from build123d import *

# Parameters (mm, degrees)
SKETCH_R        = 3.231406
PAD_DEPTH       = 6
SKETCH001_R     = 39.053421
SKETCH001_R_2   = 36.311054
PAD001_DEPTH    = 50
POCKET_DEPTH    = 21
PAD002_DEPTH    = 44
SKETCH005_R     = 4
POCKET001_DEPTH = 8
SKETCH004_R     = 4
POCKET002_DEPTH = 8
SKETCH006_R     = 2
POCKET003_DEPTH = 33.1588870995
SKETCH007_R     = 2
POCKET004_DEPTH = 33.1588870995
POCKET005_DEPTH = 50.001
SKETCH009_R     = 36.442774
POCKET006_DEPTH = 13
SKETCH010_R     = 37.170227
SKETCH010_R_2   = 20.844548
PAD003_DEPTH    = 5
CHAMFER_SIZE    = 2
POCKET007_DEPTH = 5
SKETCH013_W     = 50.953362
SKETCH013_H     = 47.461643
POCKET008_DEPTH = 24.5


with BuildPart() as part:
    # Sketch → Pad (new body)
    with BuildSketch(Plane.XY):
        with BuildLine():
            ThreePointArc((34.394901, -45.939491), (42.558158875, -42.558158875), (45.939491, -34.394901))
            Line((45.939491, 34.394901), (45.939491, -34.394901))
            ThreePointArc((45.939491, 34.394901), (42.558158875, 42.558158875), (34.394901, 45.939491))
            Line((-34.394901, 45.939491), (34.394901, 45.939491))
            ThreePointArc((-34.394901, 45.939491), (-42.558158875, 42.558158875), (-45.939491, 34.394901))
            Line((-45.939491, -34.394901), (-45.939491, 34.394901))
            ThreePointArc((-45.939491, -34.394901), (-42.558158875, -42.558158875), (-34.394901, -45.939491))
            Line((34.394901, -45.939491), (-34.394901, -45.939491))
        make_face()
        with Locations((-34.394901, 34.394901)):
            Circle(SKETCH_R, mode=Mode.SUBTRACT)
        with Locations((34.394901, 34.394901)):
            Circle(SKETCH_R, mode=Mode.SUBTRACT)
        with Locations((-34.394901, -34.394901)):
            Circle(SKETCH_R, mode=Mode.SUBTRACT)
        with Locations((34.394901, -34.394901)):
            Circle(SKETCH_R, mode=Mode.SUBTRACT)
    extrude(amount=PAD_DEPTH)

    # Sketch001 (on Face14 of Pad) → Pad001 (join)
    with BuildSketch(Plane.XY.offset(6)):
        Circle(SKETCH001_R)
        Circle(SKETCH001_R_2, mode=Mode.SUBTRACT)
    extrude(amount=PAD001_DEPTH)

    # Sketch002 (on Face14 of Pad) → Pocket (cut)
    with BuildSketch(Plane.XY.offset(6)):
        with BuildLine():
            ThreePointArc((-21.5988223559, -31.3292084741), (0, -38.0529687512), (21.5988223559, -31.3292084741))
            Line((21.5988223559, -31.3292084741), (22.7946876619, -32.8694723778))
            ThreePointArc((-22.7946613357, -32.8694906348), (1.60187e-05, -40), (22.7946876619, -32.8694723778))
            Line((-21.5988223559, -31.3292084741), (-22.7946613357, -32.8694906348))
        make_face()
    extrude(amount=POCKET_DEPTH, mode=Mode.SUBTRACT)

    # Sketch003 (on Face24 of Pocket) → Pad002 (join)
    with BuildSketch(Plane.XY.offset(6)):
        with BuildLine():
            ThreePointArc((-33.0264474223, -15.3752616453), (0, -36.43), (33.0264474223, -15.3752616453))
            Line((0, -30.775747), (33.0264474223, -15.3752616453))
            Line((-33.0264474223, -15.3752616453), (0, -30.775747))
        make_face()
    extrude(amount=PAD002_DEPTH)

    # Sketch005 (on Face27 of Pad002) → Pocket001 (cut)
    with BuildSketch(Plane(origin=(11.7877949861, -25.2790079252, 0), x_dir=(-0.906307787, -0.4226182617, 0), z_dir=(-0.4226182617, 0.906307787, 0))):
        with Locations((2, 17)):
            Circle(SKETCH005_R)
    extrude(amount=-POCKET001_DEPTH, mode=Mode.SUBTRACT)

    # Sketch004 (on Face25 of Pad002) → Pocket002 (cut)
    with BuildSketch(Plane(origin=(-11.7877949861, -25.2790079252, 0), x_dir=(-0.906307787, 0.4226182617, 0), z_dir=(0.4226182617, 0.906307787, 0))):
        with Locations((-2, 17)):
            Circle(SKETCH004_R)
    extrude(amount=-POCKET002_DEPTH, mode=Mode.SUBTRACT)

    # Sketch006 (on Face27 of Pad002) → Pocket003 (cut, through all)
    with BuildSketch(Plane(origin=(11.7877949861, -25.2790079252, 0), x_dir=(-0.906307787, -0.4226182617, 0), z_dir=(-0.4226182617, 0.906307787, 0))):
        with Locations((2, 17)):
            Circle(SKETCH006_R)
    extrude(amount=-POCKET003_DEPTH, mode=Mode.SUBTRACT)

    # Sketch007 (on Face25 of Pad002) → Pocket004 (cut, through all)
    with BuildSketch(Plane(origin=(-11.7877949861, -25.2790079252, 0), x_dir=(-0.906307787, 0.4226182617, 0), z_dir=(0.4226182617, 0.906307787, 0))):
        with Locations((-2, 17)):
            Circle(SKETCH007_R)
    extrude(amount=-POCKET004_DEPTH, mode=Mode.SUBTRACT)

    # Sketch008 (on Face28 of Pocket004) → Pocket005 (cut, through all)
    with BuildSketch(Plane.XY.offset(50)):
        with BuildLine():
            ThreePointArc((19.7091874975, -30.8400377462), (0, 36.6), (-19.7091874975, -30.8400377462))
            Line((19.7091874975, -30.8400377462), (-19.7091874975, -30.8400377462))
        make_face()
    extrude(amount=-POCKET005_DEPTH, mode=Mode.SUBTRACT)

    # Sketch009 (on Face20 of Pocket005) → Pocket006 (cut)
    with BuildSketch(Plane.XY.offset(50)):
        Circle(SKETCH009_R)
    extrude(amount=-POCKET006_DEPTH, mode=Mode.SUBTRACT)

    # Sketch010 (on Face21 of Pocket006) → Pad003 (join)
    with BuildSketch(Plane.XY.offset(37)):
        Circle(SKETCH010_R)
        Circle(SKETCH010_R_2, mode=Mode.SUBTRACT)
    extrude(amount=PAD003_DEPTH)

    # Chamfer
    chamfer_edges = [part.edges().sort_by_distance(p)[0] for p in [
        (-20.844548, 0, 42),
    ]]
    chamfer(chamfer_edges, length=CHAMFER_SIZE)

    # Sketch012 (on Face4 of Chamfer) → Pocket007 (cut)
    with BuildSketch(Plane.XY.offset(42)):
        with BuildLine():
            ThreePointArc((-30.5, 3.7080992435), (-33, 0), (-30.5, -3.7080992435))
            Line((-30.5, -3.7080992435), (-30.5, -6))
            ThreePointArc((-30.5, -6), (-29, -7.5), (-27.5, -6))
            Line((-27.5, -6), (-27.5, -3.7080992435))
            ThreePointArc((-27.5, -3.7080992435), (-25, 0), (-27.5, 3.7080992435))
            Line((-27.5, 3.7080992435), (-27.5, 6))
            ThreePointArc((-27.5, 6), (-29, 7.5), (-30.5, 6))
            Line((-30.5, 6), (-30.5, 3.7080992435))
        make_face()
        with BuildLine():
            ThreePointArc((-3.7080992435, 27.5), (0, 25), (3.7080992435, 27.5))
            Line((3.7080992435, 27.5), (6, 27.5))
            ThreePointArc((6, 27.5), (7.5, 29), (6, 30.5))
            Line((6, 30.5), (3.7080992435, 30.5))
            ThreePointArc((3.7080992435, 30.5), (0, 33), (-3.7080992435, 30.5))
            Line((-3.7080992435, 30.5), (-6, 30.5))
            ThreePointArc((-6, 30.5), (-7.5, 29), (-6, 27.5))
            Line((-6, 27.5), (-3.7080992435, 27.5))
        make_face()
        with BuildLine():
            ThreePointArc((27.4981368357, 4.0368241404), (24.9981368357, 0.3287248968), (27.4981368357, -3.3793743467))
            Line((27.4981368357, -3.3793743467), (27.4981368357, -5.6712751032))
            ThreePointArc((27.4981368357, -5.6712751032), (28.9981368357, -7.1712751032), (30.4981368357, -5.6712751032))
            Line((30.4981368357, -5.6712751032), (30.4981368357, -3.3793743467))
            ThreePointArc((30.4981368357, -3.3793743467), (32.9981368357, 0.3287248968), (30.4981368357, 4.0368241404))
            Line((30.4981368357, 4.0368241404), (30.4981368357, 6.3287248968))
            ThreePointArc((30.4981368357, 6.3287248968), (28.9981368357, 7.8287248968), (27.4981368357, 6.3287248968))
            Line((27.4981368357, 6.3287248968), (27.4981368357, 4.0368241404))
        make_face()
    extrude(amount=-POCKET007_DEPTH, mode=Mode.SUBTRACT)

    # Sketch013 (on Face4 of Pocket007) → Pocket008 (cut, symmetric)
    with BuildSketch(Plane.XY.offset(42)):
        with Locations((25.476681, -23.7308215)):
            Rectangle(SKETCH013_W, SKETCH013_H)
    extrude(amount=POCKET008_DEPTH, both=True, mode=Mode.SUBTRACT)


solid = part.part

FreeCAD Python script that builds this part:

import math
import FreeCAD as App
import Part
import Sketcher
Q = App.Units.Quantity


def edges_at(feature, points):
    """Names of the edges that pass closest to the given points."""
    edges = feature.Shape.Edges
    near = lambda p: min(range(len(edges)), key=lambda i: edges[i].distToShape(Part.Vertex(*p))[0])
    return sorted({f"Edge{near(p) + 1}" for p in points})

doc = App.newDocument("Part")
params = doc.addObject("Spreadsheet::Sheet", "Params")
for row, (alias, value) in enumerate([
    ("pad1_length", "6 mm"),
    ("pad2_length", "50 mm"),
    ("sketch3_radius", "40 mm"),
    ("sketch3_length", "1.95 mm"),
    ("sketch3_length2", "1.950002 mm"),
    ("pocket1_length", "21 mm"),
    ("sketch4_radius", "36.43 mm"),
    ("pad3_length", "44 mm"),
    ("sketch5_diameter", "8 mm"),
    ("pocket2_length", "8 mm"),
    ("sketch6_diameter", "8 mm"),
    ("pocket3_length", "8 mm"),
    ("sketch7_diameter", "4 mm"),
    ("sketch8_diameter", "4 mm"),
    ("sketch9_radius", "36.6 mm"),
    ("pocket7_length", "13 mm"),
    ("pad4_length", "5 mm"),
    ("chamfer_size", "2 mm"),
    ("sketch12_radius", "4 mm"),
    ("sketch12_radius2", "1.5 mm"),
    ("pocket8_length", "5 mm"),
    ("pocket9_length", "49 mm"),
], start=1):
    params.set(f"A{row}", alias)
    params.set(f"B{row}", "=" + value)
    params.setAlias(f"B{row}", alias)

body = doc.addObject("PartDesign::Body", "Body")

# Sketch on XY plane
sketch1 = body.newObject("Sketcher::SketchObject", "Sketch")
sketch1.AttachmentSupport = (doc.getObject("XY_Plane"), [""])
sketch1.MapMode = "FlatFace"
sketch1.addGeometry([
    Part.ArcOfCircle(Part.Circle(App.Vector(34.394901, -34.394901, 0), App.Vector(0, 0, 1), 11.54459), math.radians(-90), math.radians(0)),  # 0
    Part.LineSegment(App.Vector(45.939491, -34.394901, 0), App.Vector(45.939491, 34.394901, 0)),  # 1
    Part.ArcOfCircle(Part.Circle(App.Vector(34.394901, 34.394901, 0), App.Vector(0, 0, 1), 11.54459), math.radians(0), math.radians(90)),  # 2
    Part.LineSegment(App.Vector(34.394901, 45.939491, 0), App.Vector(-34.394901, 45.939491, 0)),  # 3
    Part.ArcOfCircle(Part.Circle(App.Vector(-34.394901, 34.394901, 0), App.Vector(0, 0, 1), 11.54459), math.radians(90), math.radians(180)),  # 4
    Part.LineSegment(App.Vector(-45.939491, 34.394901, 0), App.Vector(-45.939491, -34.394901, 0)),  # 5
    Part.ArcOfCircle(Part.Circle(App.Vector(-34.394901, -34.394901, 0), App.Vector(0, 0, 1), 11.54459), math.radians(180), math.radians(270)),  # 6
    Part.LineSegment(App.Vector(-34.394901, -45.939491, 0), App.Vector(34.394901, -45.939491, 0)),  # 7
    Part.Circle(App.Vector(-34.394901, -34.394901, 0), App.Vector(0, 0, 1), 3.231406),  # 8
    Part.Circle(App.Vector(34.394901, -34.394901, 0), App.Vector(0, 0, 1), 3.231406),  # 9
    Part.Circle(App.Vector(-34.394901, 34.394901, 0), App.Vector(0, 0, 1), 3.231406),  # 10
    Part.Circle(App.Vector(34.394901, 34.394901, 0), App.Vector(0, 0, 1), 3.231406),  # 11
], False)
sketch1.addConstraint([
    Sketcher.Constraint("Tangent", 0, 2, 1, 1),
    Sketcher.Constraint("Tangent", 1, 2, 2, 1),
    Sketcher.Constraint("Tangent", 2, 2, 3, 1),
    Sketcher.Constraint("Tangent", 3, 2, 4, 1),
    Sketcher.Constraint("Tangent", 4, 2, 5, 1),
    Sketcher.Constraint("Tangent", 5, 2, 6, 1),
    Sketcher.Constraint("Tangent", 6, 2, 7, 1),
    Sketcher.Constraint("Tangent", 7, 2, 0, 1),
    Sketcher.Constraint("Vertical", 1),
    Sketcher.Constraint("Horizontal", 3),
    Sketcher.Constraint("Vertical", 5),
    Sketcher.Constraint("Horizontal", 7),
    Sketcher.Constraint("Coincident", 8, 3, 6, 3),
    Sketcher.Constraint("Coincident", 9, 3, 0, 3),
    Sketcher.Constraint("Coincident", 10, 3, 4, 3),
    Sketcher.Constraint("Coincident", 11, 3, 2, 3),
    Sketcher.Constraint("Equal", 0, 2),
    Sketcher.Constraint("Equal", 2, 4),
    Sketcher.Constraint("Equal", 4, 6),
    Sketcher.Constraint("Equal", 8, 9),
    Sketcher.Constraint("Equal", 9, 10),
    Sketcher.Constraint("Equal", 10, 11),
    Sketcher.Constraint("Symmetric", 0, 3, 4, 3, -1, 1),
    Sketcher.Constraint("Equal", 7, 1),
    Sketcher.Constraint("Diameter", 8, 6.462812),
    Sketcher.Constraint("Radius", 0, 11.54459),
    Sketcher.Constraint("DistanceX", 3, 2, 3, 1, 68.789802),
])
pad1 = body.newObject("PartDesign::Pad", "Pad")
pad1.Profile = sketch1
pad1.setExpression("Length", "Params.pad1_length")

# Sketch on XY plane
sketch2 = body.newObject("Sketcher::SketchObject", "Sketch001")
sketch2.AttachmentSupport = (doc.getObject("XY_Plane"), [""])
sketch2.MapMode = "FlatFace"
sketch2.AttachmentOffset = App.Placement(App.Vector(0, 0, 6), App.Rotation())
sketch2.addGeometry([
    Part.Circle(App.Vector(0, 0, 0), App.Vector(0, 0, 1), 39.053421),
    Part.Circle(App.Vector(0, 0, 0), App.Vector(0, 0, 1), 36.311054),
], False)
sketch2.addConstraint([
    Sketcher.Constraint("Coincident", 0, 3, -1, 1),
    Sketcher.Constraint("Coincident", 1, 3, -1, 1),
    Sketcher.Constraint("Diameter", 0, 78.106842),
    Sketcher.Constraint("Diameter", 1, 72.622108),
])
pad2 = body.newObject("PartDesign::Pad", "Pad001")
pad2.Profile = sketch2
pad2.setExpression("Length", "Params.pad2_length")

# Sketch on XY plane
sketch3 = body.newObject("Sketcher::SketchObject", "Sketch002")
sketch3.AttachmentSupport = (doc.getObject("XY_Plane"), [""])
sketch3.MapMode = "FlatFace"
sketch3.AttachmentOffset = App.Placement(App.Vector(0, 0, 6), App.Rotation())
sketch3.addGeometry([
    Part.ArcOfCircle(Part.Circle(App.Vector(0, 0, 0), App.Vector(0, 0, 1), 38.052969), math.radians(-124.582957), math.radians(-55.417043)),
    Part.LineSegment(App.Vector(-21.598822, -31.329208, 0), App.Vector(-22.794661, -32.869491, 0)),
    Part.ArcOfCircle(Part.Circle(App.Vector(0, 0, 0), App.Vector(0, 0, 1), 40), math.radians(-124.740919), math.radians(-55.259035)),
    Part.LineSegment(App.Vector(22.794688, -32.869472, 0), App.Vector(21.598822, -31.329208, 0)),
], False)
sketch3.addConstraint([
    Sketcher.Constraint("Coincident", 0, 1, 1, 1),
    Sketcher.Constraint("Coincident", 1, 2, 2, 1),
    Sketcher.Constraint("Coincident", 2, 2, 3, 1),
    Sketcher.Constraint("Coincident", 3, 2, 0, 2),
    Sketcher.Constraint("Coincident", 0, 3, -1, 1),
    Sketcher.Constraint("Coincident", 2, 3, -1, 1),
    Sketcher.Constraint("Radius", 2, 40.0),
    Sketcher.Constraint("Distance", 1, 1.95),
    Sketcher.Constraint("Distance", 3, 1.950002),
    Sketcher.Constraint("Radius", 0, 38.052969),
    Sketcher.Constraint("DistanceY", 0, 1, -1, 1, 31.329208),
    Sketcher.Constraint("DistanceY", 3, 2, -1, 1, 31.329208),
])
sketch3.setExpression("Constraints[6]", "Params.sketch3_radius")
sketch3.setExpression("Constraints[7]", "Params.sketch3_length")
sketch3.setExpression("Constraints[8]", "Params.sketch3_length2")
pocket1 = body.newObject("PartDesign::Pocket", "Pocket")
pocket1.Profile = sketch3
pocket1.setExpression("Length", "Params.pocket1_length")
pocket1.Reversed = True

# Sketch on XY plane
sketch4 = body.newObject("Sketcher::SketchObject", "Sketch003")
sketch4.AttachmentSupport = (doc.getObject("XY_Plane"), [""])
sketch4.MapMode = "FlatFace"
sketch4.AttachmentOffset = App.Placement(App.Vector(0, 0, 6), App.Rotation())
sketch4.addGeometry([
    Part.ArcOfCircle(Part.Circle(App.Vector(0, 0, 0), App.Vector(0, 0, 1), 36.43), math.radians(-155.035954), math.radians(-24.964046)),
    Part.LineSegment(App.Vector(33.026447, -15.375262, 0), App.Vector(0, -30.775747, 0)),
    Part.LineSegment(App.Vector(0, -30.775747, 0), App.Vector(-33.026447, -15.375262, 0)),
], False)
sketch4.addConstraint([
    Sketcher.Constraint("Coincident", 0, 2, 1, 1),
    Sketcher.Constraint("Coincident", 1, 2, 2, 1),
    Sketcher.Constraint("Coincident", 2, 2, 0, 1),
    Sketcher.Constraint("Coincident", 0, 3, -1, 1),
    Sketcher.Constraint("PointOnObject", 1, 2, -2),
    Sketcher.Constraint("Horizontal", 0, 2, 2, 2),
    Sketcher.Constraint("Angle", 1, Q("-155 deg")),
    Sketcher.Constraint("Radius", 0, 36.43),
    Sketcher.Constraint("DistanceY", 0, 2, -1, 1, 15.375262),
])
sketch4.setExpression("Constraints[7]", "Params.sketch4_radius")
pad3 = body.newObject("PartDesign::Pad", "Pad002")
pad3.Profile = sketch4
pad3.setExpression("Length", "Params.pad3_length")

# Sketch on an angled plane
sketch5 = body.newObject("Sketcher::SketchObject", "Sketch004")
sketch5.Placement = App.Placement(App.Vector(11.787795, -25.279008, 0), App.Rotation(App.Vector(-0.906307787, -0.422618262, 0), App.Vector(0, 0, 1), App.Vector(-0.422618262, 0.906307787, 0), "ZXY"))
sketch5.addGeometry(Part.Circle(App.Vector(2, 17, 0), App.Vector(0, 0, 1), 4), False)
sketch5.addConstraint([
    Sketcher.Constraint("Diameter", 0, 8.0),
    Sketcher.Constraint("DistanceX", -1, 1, 0, 3, 2.0),
    Sketcher.Constraint("DistanceY", -1, 1, 0, 3, 17.0),
])
sketch5.setExpression("Constraints[0]", "Params.sketch5_diameter")
pocket2 = body.newObject("PartDesign::Pocket", "Pocket001")
pocket2.Profile = sketch5
pocket2.setExpression("Length", "Params.pocket2_length")

# Sketch on an angled plane
sketch6 = body.newObject("Sketcher::SketchObject", "Sketch005")
sketch6.Placement = App.Placement(App.Vector(-11.787795, -25.279008, 0), App.Rotation(App.Vector(-0.906307787, 0.422618262, 0), App.Vector(0, 0, 1), App.Vector(0.422618262, 0.906307787, 0), "ZXY"))
sketch6.addGeometry(Part.Circle(App.Vector(-2, 17, 0), App.Vector(0, 0, 1), 4), False)
sketch6.addConstraint([
    Sketcher.Constraint("Diameter", 0, 8.0),
    Sketcher.Constraint("DistanceX", 0, 3, -1, 1, 2.0),
    Sketcher.Constraint("DistanceY", -1, 1, 0, 3, 17.0),
])
sketch6.setExpression("Constraints[0]", "Params.sketch6_diameter")
pocket3 = body.newObject("PartDesign::Pocket", "Pocket002")
pocket3.Profile = sketch6
pocket3.setExpression("Length", "Params.pocket3_length")

# Sketch on an angled plane
sketch7 = body.newObject("Sketcher::SketchObject", "Sketch006")
sketch7.Placement = App.Placement(App.Vector(11.787795, -25.279008, 0), App.Rotation(App.Vector(-0.906307787, -0.422618262, 0), App.Vector(0, 0, 1), App.Vector(-0.422618262, 0.906307787, 0), "ZXY"))
sketch7.addGeometry(Part.Circle(App.Vector(2, 17, 0), App.Vector(0, 0, 1), 2), False)
sketch7.addConstraint([
    Sketcher.Constraint("Diameter", 0, 4.0),
    Sketcher.Constraint("DistanceX", -1, 1, 0, 3, 2.0),
    Sketcher.Constraint("DistanceY", -1, 1, 0, 3, 17.0),
])
sketch7.setExpression("Constraints[0]", "Params.sketch7_diameter")
pocket4 = body.newObject("PartDesign::Pocket", "Pocket003")
pocket4.Profile = sketch7
pocket4.Type = "ThroughAll"

# Sketch on an angled plane
sketch8 = body.newObject("Sketcher::SketchObject", "Sketch007")
sketch8.Placement = App.Placement(App.Vector(-11.787795, -25.279008, 0), App.Rotation(App.Vector(-0.906307787, 0.422618262, 0), App.Vector(0, 0, 1), App.Vector(0.422618262, 0.906307787, 0), "ZXY"))
sketch8.addGeometry(Part.Circle(App.Vector(-2, 17, 0), App.Vector(0, 0, 1), 2), False)
sketch8.addConstraint([
    Sketcher.Constraint("Diameter", 0, 4.0),
    Sketcher.Constraint("DistanceX", 0, 3, -1, 1, 2.0),
    Sketcher.Constraint("DistanceY", -1, 1, 0, 3, 17.0),
])
sketch8.setExpression("Constraints[0]", "Params.sketch8_diameter")
pocket5 = body.newObject("PartDesign::Pocket", "Pocket004")
pocket5.Profile = sketch8
pocket5.Type = "ThroughAll"

# Sketch on XY plane
sketch9 = body.newObject("Sketcher::SketchObject", "Sketch008")
sketch9.AttachmentSupport = (doc.getObject("XY_Plane"), [""])
sketch9.MapMode = "FlatFace"
sketch9.AttachmentOffset = App.Placement(App.Vector(0, 0, 50), App.Rotation())
sketch9.addGeometry([
    Part.ArcOfCircle(Part.Circle(App.Vector(0, 0, 0), App.Vector(0, 0, 1), 36.6), math.radians(-57.418252), math.radians(237.418252)),
    Part.LineSegment(App.Vector(-19.709187, -30.840038, 0), App.Vector(19.709187, -30.840038, 0)),
], False)
sketch9.addConstraint([
    Sketcher.Constraint("Coincident", 0, 1, 1, 2),
    Sketcher.Constraint("Coincident", 1, 1, 0, 2),
    Sketcher.Constraint("Horizontal", 1),
    Sketcher.Constraint("Coincident", 0, 3, -1, 1),
    Sketcher.Constraint("Radius", 0, 36.6),
    Sketcher.Constraint("DistanceX", 1, 1, 1, 2, 39.418375),
])
sketch9.setExpression("Constraints[4]", "Params.sketch9_radius")
pocket6 = body.newObject("PartDesign::Pocket", "Pocket005")
pocket6.Profile = sketch9
pocket6.Type = "ThroughAll"

# Sketch on XY plane
sketch10 = body.newObject("Sketcher::SketchObject", "Sketch009")
sketch10.AttachmentSupport = (doc.getObject("XY_Plane"), [""])
sketch10.MapMode = "FlatFace"
sketch10.AttachmentOffset = App.Placement(App.Vector(0, 0, 50), App.Rotation())
sketch10.addGeometry(Part.Circle(App.Vector(0, 0, 0), App.Vector(0, 0, 1), 36.442774), False)
sketch10.addConstraint([
    Sketcher.Constraint("Coincident", 0, 3, -1, 1),
    Sketcher.Constraint("Diameter", 0, 72.885548),
])
pocket7 = body.newObject("PartDesign::Pocket", "Pocket006")
pocket7.Profile = sketch10
pocket7.setExpression("Length", "Params.pocket7_length")

# Sketch on XY plane
sketch11 = body.newObject("Sketcher::SketchObject", "Sketch010")
sketch11.AttachmentSupport = (doc.getObject("XY_Plane"), [""])
sketch11.MapMode = "FlatFace"
sketch11.AttachmentOffset = App.Placement(App.Vector(0, 0, 37), App.Rotation())
sketch11.addGeometry([
    Part.Circle(App.Vector(0, 0, 0), App.Vector(0, 0, 1), 37.170227),
    Part.Circle(App.Vector(0, 0, 0), App.Vector(0, 0, 1), 20.844548),
], False)
sketch11.addConstraint([
    Sketcher.Constraint("Coincident", 0, 3, -1, 1),
    Sketcher.Constraint("Coincident", 1, 3, -1, 1),
    Sketcher.Constraint("Diameter", 0, 74.340454),
    Sketcher.Constraint("Diameter", 1, 41.689096),
])
pad4 = body.newObject("PartDesign::Pad", "Pad003")
pad4.Profile = sketch11
pad4.setExpression("Length", "Params.pad4_length")
doc.recompute()

chamfer = body.newObject("PartDesign::Chamfer", "Chamfer")
chamfer.Base = (pad4, edges_at(pad4, [(-20.845, 0, 42)]))
chamfer.setExpression("Size", "Params.chamfer_size")

# Sketch on XY plane
sketch12 = body.newObject("Sketcher::SketchObject", "Sketch011")
sketch12.AttachmentSupport = (doc.getObject("XY_Plane"), [""])
sketch12.MapMode = "FlatFace"
sketch12.AttachmentOffset = App.Placement(App.Vector(0, 0, 42), App.Rotation())
sketch12.addGeometry([
    Part.ArcOfCircle(Part.Circle(App.Vector(-29, 0, 0), App.Vector(0, 0, 1), 4), math.radians(112.024313), math.radians(247.975687)),  # 0
    Part.LineSegment(App.Vector(-30.5, -3.708099, 0), App.Vector(-30.5, -6, 0)),  # 1
    Part.ArcOfCircle(Part.Circle(App.Vector(-29, -6, 0), App.Vector(0, 0, 1), 1.5), math.radians(180), math.radians(360)),  # 2
    Part.LineSegment(App.Vector(-27.5, -6, 0), App.Vector(-27.5, -3.708099, 0)),  # 3
    Part.ArcOfCircle(Part.Circle(App.Vector(-29, 0, 0), App.Vector(0, 0, 1), 4), math.radians(-67.975687), math.radians(67.975687)),  # 4
    Part.LineSegment(App.Vector(-27.5, 3.708099, 0), App.Vector(-27.5, 6, 0)),  # 5
    Part.ArcOfCircle(Part.Circle(App.Vector(-29, 6, 0), App.Vector(0, 0, 1), 1.5), math.radians(0), math.radians(180)),  # 6
    Part.LineSegment(App.Vector(-30.5, 6, 0), App.Vector(-30.5, 3.708099, 0)),  # 7
    Part.ArcOfCircle(Part.Circle(App.Vector(0, 29, 0), App.Vector(0, 0, 1), 4), math.radians(-157.975687), math.radians(-22.024313)),  # 8
    Part.LineSegment(App.Vector(3.708099, 27.5, 0), App.Vector(6, 27.5, 0)),  # 9
    Part.ArcOfCircle(Part.Circle(App.Vector(6, 29, 0), App.Vector(0, 0, 1), 1.5), math.radians(-90), math.radians(90)),  # 10
    Part.LineSegment(App.Vector(6, 30.5, 0), App.Vector(3.708099, 30.5, 0)),  # 11
    Part.ArcOfCircle(Part.Circle(App.Vector(0, 29, 0), App.Vector(0, 0, 1), 4), math.radians(22.024313), math.radians(157.975687)),  # 12
    Part.LineSegment(App.Vector(-3.708099, 30.5, 0), App.Vector(-6, 30.5, 0)),  # 13
    Part.ArcOfCircle(Part.Circle(App.Vector(-6, 29, 0), App.Vector(0, 0, 1), 1.5), math.radians(90), math.radians(270)),  # 14
    Part.LineSegment(App.Vector(-6, 27.5, 0), App.Vector(-3.708099, 27.5, 0)),  # 15
    Part.ArcOfCircle(Part.Circle(App.Vector(28.998137, 0.328725, 0), App.Vector(0, 0, 1), 4), math.radians(112.024313), math.radians(247.975687)),  # 16
    Part.LineSegment(App.Vector(27.498137, -3.379374, 0), App.Vector(27.498137, -5.671275, 0)),  # 17
    Part.ArcOfCircle(Part.Circle(App.Vector(28.998137, -5.671275, 0), App.Vector(0, 0, 1), 1.5), math.radians(180), math.radians(360)),  # 18
    Part.LineSegment(App.Vector(30.498137, -5.671275, 0), App.Vector(30.498137, -3.379374, 0)),  # 19
    Part.ArcOfCircle(Part.Circle(App.Vector(28.998137, 0.328725, 0), App.Vector(0, 0, 1), 4), math.radians(-67.975687), math.radians(67.975687)),  # 20
    Part.LineSegment(App.Vector(30.498137, 4.036824, 0), App.Vector(30.498137, 6.328725, 0)),  # 21
    Part.ArcOfCircle(Part.Circle(App.Vector(28.998137, 6.328725, 0), App.Vector(0, 0, 1), 1.5), math.radians(0), math.radians(180)),  # 22
    Part.LineSegment(App.Vector(27.498137, 6.328725, 0), App.Vector(27.498137, 4.036824, 0)),  # 23
], False)
sketch12.addConstraint([
    Sketcher.Constraint("Coincident", 0, 2, 1, 1),
    Sketcher.Constraint("Tangent", 1, 2, 2, 1),
    Sketcher.Constraint("Tangent", 2, 2, 3, 1),
    Sketcher.Constraint("Coincident", 3, 2, 4, 1),
    Sketcher.Constraint("Coincident", 4, 2, 5, 1),
    Sketcher.Constraint("Tangent", 5, 2, 6, 1),
    Sketcher.Constraint("Tangent", 6, 2, 7, 1),
    Sketcher.Constraint("Coincident", 7, 2, 0, 1),
    Sketcher.Constraint("Coincident", 8, 2, 9, 1),
    Sketcher.Constraint("Tangent", 9, 2, 10, 1),
    Sketcher.Constraint("Tangent", 10, 2, 11, 1),
    Sketcher.Constraint("Coincident", 11, 2, 12, 1),
    Sketcher.Constraint("Coincident", 12, 2, 13, 1),
    Sketcher.Constraint("Tangent", 13, 2, 14, 1),
    Sketcher.Constraint("Tangent", 14, 2, 15, 1),
    Sketcher.Constraint("Coincident", 15, 2, 8, 1),
    Sketcher.Constraint("Coincident", 16, 2, 17, 1),
    Sketcher.Constraint("Tangent", 17, 2, 18, 1),
    Sketcher.Constraint("Tangent", 18, 2, 19, 1),
    Sketcher.Constraint("Coincident", 19, 2, 20, 1),
    Sketcher.Constraint("Coincident", 20, 2, 21, 1),
    Sketcher.Constraint("Tangent", 21, 2, 22, 1),
    Sketcher.Constraint("Tangent", 22, 2, 23, 1),
    Sketcher.Constraint("Coincident", 23, 2, 16, 1),
    Sketcher.Constraint("Vertical", 1),
    Sketcher.Constraint("Vertical", 3),
    Sketcher.Constraint("Vertical", 5),
    Sketcher.Constraint("Vertical", 7),
    Sketcher.Constraint("Horizontal", 9),
    Sketcher.Constraint("Horizontal", 11),
    Sketcher.Constraint("Horizontal", 13),
    Sketcher.Constraint("Horizontal", 15),
    Sketcher.Constraint("Vertical", 17),
    Sketcher.Constraint("Vertical", 19),
    Sketcher.Constraint("Vertical", 21),
    Sketcher.Constraint("Vertical", 23),
    Sketcher.Constraint("Coincident", 4, 3, 0, 3),
    Sketcher.Constraint("Coincident", 12, 3, 8, 3),
    Sketcher.Constraint("Coincident", 20, 3, 16, 3),
    Sketcher.Constraint("Equal", 0, 4),
    Sketcher.Constraint("Equal", 2, 6),
    Sketcher.Constraint("Equal", 4, 8),
    Sketcher.Constraint("Equal", 6, 10),
    Sketcher.Constraint("Equal", 8, 12),
    Sketcher.Constraint("Equal", 10, 14),
    Sketcher.Constraint("Equal", 12, 16),
    Sketcher.Constraint("Equal", 14, 18),
    Sketcher.Constraint("Equal", 16, 20),
    Sketcher.Constraint("Equal", 18, 22),
    Sketcher.Constraint("Symmetric", 10, 3, 14, 3, -2),
    Sketcher.Constraint("Symmetric", 2, 3, 6, 3, -1),
    Sketcher.Constraint("PointOnObject", 0, 3, -1),
    Sketcher.Constraint("PointOnObject", 8, 3, -2),
    Sketcher.Constraint("Horizontal", 8, 3, 10, 3),
    Sketcher.Constraint("Horizontal", 0, 2, 3, 2),
    Sketcher.Constraint("Horizontal", 16, 2, 19, 2),
    Sketcher.Constraint("Horizontal", 20, 2, 23, 2),
    Sketcher.Constraint("Equal", 15, 1),
    Sketcher.Constraint("Equal", 7, 17),
    Sketcher.Constraint("Equal", 19, 21),
    Sketcher.Constraint("Radius", 0, 4.0),
    Sketcher.Constraint("Radius", 2, 1.5),
    Sketcher.Constraint("DistanceX", 0, 3, -1, 1, 29.0),
    Sketcher.Constraint("DistanceY", 2, 3, -1, 1, 6.0),
    Sketcher.Constraint("DistanceY", -1, 1, 8, 3, 29.0),
    Sketcher.Constraint("DistanceX", -1, 1, 16, 3, 28.998137),
    Sketcher.Constraint("DistanceY", -1, 1, 16, 3, 0.328725),
])
sketch12.setExpression("Constraints[60]", "Params.sketch12_radius")
sketch12.setExpression("Constraints[61]", "Params.sketch12_radius2")
pocket8 = body.newObject("PartDesign::Pocket", "Pocket007")
pocket8.Profile = sketch12
pocket8.setExpression("Length", "Params.pocket8_length")

# Sketch on XY plane
sketch13 = body.newObject("Sketcher::SketchObject", "Sketch012")
sketch13.AttachmentSupport = (doc.getObject("XY_Plane"), [""])
sketch13.MapMode = "FlatFace"
sketch13.AttachmentOffset = App.Placement(App.Vector(0, 0, 42), App.Rotation())
sketch13.addGeometry([
    Part.LineSegment(App.Vector(0, 0, 0), App.Vector(0, -47.461643, 0)),
    Part.LineSegment(App.Vector(0, -47.461643, 0), App.Vector(50.953362, -47.461643, 0)),
    Part.LineSegment(App.Vector(50.953362, -47.461643, 0), App.Vector(50.953362, 0, 0)),
    Part.LineSegment(App.Vector(50.953362, 0, 0), App.Vector(0, 0, 0)),
], False)
sketch13.addConstraint([
    Sketcher.Constraint("Coincident", 0, 2, 1, 1),
    Sketcher.Constraint("Coincident", 1, 2, 2, 1),
    Sketcher.Constraint("Coincident", 2, 2, 3, 1),
    Sketcher.Constraint("Coincident", 3, 2, 0, 1),
    Sketcher.Constraint("Vertical", 0),
    Sketcher.Constraint("Horizontal", 1),
    Sketcher.Constraint("Vertical", 2),
    Sketcher.Constraint("Horizontal", 3),
    Sketcher.Constraint("Coincident", 3, 2, -1, 1),
    Sketcher.Constraint("DistanceX", 1, 1, 1, 2, 50.953362),
    Sketcher.Constraint("DistanceY", 0, 2, 0, 1, 47.461643),
])
pocket9 = body.newObject("PartDesign::Pocket", "Pocket008")
pocket9.Profile = sketch13
pocket9.setExpression("Length", "Params.pocket9_length")
pocket9.Midplane = True

doc.recompute()
